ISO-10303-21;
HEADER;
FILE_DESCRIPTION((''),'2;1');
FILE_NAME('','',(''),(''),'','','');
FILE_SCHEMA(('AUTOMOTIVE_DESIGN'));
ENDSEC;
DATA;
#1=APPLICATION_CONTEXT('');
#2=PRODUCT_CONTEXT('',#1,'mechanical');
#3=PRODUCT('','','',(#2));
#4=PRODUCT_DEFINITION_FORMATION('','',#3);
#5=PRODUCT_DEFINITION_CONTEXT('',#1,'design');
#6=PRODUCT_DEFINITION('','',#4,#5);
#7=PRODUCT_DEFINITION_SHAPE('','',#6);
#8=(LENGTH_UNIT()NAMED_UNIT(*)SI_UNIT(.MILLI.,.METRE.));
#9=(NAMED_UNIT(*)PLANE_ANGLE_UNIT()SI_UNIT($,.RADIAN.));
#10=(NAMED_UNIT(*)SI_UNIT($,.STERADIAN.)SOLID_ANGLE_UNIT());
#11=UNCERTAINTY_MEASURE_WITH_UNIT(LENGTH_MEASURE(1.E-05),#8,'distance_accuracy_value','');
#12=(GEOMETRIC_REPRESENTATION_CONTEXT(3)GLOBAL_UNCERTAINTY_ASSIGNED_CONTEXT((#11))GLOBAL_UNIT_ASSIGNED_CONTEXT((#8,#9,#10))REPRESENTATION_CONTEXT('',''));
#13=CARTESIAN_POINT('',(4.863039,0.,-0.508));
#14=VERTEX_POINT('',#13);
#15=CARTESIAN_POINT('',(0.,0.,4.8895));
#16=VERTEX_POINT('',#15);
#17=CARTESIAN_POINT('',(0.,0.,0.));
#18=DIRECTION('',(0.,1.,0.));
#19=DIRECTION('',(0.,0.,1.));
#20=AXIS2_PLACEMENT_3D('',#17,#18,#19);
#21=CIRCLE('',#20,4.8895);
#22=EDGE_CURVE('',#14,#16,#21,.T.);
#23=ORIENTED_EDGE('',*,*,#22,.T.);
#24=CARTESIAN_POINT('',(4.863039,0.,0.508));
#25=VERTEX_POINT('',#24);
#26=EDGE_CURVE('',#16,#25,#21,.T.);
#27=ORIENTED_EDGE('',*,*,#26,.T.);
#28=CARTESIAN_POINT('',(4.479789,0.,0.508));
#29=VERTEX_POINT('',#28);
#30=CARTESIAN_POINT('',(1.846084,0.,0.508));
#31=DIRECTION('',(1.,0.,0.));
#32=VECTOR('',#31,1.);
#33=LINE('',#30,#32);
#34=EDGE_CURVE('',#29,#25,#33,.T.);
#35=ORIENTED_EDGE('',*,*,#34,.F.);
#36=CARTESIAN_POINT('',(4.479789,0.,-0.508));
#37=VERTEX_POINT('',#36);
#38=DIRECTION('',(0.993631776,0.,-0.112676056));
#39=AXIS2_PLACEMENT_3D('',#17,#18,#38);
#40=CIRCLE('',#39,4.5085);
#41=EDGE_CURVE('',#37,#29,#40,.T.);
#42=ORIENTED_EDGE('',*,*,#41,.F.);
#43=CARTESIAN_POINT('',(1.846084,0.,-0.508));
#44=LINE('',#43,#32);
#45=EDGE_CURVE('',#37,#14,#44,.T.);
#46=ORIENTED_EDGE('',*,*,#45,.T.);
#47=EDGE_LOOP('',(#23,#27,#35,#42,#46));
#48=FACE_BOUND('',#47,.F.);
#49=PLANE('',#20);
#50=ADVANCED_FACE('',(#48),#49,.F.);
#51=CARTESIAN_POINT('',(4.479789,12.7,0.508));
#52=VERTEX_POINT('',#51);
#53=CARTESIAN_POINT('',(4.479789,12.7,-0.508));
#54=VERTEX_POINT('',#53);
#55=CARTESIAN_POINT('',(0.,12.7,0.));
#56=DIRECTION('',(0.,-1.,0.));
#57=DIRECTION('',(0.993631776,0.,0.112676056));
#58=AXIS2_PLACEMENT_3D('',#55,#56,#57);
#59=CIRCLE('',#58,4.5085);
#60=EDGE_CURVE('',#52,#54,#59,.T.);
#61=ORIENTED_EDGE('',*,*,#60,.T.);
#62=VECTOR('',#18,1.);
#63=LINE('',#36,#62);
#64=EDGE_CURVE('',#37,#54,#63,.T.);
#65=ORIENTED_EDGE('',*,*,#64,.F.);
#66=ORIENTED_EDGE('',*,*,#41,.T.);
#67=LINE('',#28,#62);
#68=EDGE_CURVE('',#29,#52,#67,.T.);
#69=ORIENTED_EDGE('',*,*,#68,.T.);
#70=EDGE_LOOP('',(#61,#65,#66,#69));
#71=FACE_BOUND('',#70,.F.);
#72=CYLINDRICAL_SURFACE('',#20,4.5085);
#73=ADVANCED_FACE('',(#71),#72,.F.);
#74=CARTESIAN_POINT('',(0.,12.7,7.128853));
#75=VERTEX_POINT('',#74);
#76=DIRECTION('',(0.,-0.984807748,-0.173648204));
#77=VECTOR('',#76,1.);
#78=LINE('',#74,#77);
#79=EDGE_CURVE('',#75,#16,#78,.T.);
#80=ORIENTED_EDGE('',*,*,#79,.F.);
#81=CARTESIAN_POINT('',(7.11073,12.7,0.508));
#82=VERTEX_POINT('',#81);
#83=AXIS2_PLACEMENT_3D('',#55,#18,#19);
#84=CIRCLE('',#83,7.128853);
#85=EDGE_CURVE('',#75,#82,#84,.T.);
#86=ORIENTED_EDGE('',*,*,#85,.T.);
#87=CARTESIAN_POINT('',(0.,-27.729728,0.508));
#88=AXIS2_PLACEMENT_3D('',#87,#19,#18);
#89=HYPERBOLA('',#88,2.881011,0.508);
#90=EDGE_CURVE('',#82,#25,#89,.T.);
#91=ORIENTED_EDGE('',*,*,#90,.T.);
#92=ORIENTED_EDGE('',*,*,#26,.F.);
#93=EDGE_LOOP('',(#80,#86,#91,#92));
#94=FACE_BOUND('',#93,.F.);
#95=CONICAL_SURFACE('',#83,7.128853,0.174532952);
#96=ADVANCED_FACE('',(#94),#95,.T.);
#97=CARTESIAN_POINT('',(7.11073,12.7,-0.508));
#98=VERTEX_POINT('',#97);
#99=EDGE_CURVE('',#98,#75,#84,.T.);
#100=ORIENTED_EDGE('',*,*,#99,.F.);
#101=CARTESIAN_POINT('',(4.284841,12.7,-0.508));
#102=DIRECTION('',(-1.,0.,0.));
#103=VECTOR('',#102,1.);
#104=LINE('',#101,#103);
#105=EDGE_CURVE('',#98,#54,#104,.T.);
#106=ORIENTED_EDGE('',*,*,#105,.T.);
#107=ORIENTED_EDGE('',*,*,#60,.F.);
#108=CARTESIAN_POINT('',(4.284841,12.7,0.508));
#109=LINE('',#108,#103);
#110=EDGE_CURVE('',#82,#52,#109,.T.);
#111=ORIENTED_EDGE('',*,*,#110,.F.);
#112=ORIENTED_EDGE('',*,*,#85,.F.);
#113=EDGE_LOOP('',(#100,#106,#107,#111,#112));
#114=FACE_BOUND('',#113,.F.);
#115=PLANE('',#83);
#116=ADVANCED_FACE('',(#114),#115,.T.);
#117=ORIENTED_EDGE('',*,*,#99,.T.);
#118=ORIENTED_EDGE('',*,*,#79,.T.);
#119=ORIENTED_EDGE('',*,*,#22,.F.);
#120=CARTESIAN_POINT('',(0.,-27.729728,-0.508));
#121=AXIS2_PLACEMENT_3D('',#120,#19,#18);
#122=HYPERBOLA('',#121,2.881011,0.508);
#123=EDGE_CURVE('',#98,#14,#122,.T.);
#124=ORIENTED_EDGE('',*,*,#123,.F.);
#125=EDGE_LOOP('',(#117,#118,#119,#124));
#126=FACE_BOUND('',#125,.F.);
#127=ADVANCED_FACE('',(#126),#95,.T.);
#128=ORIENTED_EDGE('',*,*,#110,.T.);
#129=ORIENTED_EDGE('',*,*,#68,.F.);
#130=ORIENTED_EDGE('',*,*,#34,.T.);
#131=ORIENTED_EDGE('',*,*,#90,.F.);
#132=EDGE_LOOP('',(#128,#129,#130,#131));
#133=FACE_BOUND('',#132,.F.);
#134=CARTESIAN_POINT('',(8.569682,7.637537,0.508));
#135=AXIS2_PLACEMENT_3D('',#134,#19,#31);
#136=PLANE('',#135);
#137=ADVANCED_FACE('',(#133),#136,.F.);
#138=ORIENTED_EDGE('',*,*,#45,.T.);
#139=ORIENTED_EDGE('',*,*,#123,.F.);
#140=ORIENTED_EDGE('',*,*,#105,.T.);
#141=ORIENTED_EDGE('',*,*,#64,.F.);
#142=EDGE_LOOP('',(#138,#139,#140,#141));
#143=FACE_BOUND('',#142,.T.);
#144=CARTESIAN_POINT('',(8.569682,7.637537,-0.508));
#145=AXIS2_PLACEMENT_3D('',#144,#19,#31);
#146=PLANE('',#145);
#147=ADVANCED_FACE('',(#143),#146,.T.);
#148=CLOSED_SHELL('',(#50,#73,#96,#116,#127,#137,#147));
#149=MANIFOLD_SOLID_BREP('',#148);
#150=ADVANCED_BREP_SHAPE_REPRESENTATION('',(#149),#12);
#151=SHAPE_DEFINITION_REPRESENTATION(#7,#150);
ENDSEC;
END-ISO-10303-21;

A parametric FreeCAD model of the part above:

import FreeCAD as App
import Part
import Sketcher
from FreeCAD import Vector
Q = App.Units.Quantity


def add_polygon(sketch, points):
    """Adds a closed chain of lines whose ends are joined by coincident constraints."""
    first, n = sketch.GeometryCount, len(points)
    for a, b in zip(points, points[1:] + points[:1]):
        sketch.addGeometry(Part.LineSegment(App.Vector(*a, 0), App.Vector(*b, 0)), False)
    for i in range(n):
        sketch.addConstraint(Sketcher.Constraint("Coincident", first + i, 2, first + (i + 1) % n, 1))

doc = App.newDocument("Part")
body = doc.addObject("PartDesign::Body", "Body")

# Sketch on YZ plane
sketch1 = body.newObject("Sketcher::SketchObject", "Sketch")
sketch1.AttachmentSupport = (doc.getObject("YZ_Plane"), [""])
sketch1.MapMode = "FlatFace"
add_polygon(sketch1, [(12.7, 7.128853), (0, 4.8895), (0, 4.5085), (12.7, 4.5085)])  # lines 0-3
sketch1.addConstraint([
    Sketcher.Constraint("Vertical", 1),
    Sketcher.Constraint("Horizontal", 2),
    Sketcher.Constraint("Vertical", 3),
    Sketcher.Constraint("PointOnObject", 0, 2, -2),
    Sketcher.Constraint("DistanceX", 2, 1, 2, 2, Q("0.5 in")),
    Sketcher.Constraint("Angle", 0, Q("-169.999998 deg")),
    Sketcher.Constraint("DistanceY", 1, 2, 1, 1, Q("0.015 in")),
    Sketcher.Constraint("DistanceY", -1, 1, 0, 2, Q("0.1925 in")),
])
revolution = body.newObject("PartDesign::Revolution", "Revolution")
revolution.Profile = sketch1
revolution.ReferenceAxis = (sketch1, ["H_Axis"])
revolution.Angle = 360

# Sketch on XY plane
sketch2 = body.newObject("Sketcher::SketchObject", "Sketch001")
sketch2.AttachmentSupport = (doc.getObject("XY_Plane"), [""])
sketch2.MapMode = "FlatFace"
add_polygon(sketch2, [(15.353079, 15.146448), (1.846084, 15.401297), (1.846084, 0), (15.353079, 0)])  # lines 0-3
sketch2.addConstraint([
    Sketcher.Constraint("Vertical", 1),
    Sketcher.Constraint("Horizontal", 2),
    Sketcher.Constraint("Vertical", 3),
    Sketcher.Constraint("PointOnObject", 1, 2, -1),
    Sketcher.Constraint("Distance", 0, Q("13.509399 mm")),
    Sketcher.Constraint("DistanceX", 2, 1, 2, 2, Q("13.506995 mm")),
    Sketcher.Constraint("DistanceY", 1, 2, 1, 1, Q("15.401297 mm")),
    Sketcher.Constraint("DistanceX", -1, 1, 2, 2, Q("15.353079 mm")),
])
pocket1 = body.newObject("PartDesign::Pocket", "Pocket")
pocket1.Profile = sketch2
pocket1.Length = Q("0.04 in")
pocket1.Midplane = True

doc.recompute()
